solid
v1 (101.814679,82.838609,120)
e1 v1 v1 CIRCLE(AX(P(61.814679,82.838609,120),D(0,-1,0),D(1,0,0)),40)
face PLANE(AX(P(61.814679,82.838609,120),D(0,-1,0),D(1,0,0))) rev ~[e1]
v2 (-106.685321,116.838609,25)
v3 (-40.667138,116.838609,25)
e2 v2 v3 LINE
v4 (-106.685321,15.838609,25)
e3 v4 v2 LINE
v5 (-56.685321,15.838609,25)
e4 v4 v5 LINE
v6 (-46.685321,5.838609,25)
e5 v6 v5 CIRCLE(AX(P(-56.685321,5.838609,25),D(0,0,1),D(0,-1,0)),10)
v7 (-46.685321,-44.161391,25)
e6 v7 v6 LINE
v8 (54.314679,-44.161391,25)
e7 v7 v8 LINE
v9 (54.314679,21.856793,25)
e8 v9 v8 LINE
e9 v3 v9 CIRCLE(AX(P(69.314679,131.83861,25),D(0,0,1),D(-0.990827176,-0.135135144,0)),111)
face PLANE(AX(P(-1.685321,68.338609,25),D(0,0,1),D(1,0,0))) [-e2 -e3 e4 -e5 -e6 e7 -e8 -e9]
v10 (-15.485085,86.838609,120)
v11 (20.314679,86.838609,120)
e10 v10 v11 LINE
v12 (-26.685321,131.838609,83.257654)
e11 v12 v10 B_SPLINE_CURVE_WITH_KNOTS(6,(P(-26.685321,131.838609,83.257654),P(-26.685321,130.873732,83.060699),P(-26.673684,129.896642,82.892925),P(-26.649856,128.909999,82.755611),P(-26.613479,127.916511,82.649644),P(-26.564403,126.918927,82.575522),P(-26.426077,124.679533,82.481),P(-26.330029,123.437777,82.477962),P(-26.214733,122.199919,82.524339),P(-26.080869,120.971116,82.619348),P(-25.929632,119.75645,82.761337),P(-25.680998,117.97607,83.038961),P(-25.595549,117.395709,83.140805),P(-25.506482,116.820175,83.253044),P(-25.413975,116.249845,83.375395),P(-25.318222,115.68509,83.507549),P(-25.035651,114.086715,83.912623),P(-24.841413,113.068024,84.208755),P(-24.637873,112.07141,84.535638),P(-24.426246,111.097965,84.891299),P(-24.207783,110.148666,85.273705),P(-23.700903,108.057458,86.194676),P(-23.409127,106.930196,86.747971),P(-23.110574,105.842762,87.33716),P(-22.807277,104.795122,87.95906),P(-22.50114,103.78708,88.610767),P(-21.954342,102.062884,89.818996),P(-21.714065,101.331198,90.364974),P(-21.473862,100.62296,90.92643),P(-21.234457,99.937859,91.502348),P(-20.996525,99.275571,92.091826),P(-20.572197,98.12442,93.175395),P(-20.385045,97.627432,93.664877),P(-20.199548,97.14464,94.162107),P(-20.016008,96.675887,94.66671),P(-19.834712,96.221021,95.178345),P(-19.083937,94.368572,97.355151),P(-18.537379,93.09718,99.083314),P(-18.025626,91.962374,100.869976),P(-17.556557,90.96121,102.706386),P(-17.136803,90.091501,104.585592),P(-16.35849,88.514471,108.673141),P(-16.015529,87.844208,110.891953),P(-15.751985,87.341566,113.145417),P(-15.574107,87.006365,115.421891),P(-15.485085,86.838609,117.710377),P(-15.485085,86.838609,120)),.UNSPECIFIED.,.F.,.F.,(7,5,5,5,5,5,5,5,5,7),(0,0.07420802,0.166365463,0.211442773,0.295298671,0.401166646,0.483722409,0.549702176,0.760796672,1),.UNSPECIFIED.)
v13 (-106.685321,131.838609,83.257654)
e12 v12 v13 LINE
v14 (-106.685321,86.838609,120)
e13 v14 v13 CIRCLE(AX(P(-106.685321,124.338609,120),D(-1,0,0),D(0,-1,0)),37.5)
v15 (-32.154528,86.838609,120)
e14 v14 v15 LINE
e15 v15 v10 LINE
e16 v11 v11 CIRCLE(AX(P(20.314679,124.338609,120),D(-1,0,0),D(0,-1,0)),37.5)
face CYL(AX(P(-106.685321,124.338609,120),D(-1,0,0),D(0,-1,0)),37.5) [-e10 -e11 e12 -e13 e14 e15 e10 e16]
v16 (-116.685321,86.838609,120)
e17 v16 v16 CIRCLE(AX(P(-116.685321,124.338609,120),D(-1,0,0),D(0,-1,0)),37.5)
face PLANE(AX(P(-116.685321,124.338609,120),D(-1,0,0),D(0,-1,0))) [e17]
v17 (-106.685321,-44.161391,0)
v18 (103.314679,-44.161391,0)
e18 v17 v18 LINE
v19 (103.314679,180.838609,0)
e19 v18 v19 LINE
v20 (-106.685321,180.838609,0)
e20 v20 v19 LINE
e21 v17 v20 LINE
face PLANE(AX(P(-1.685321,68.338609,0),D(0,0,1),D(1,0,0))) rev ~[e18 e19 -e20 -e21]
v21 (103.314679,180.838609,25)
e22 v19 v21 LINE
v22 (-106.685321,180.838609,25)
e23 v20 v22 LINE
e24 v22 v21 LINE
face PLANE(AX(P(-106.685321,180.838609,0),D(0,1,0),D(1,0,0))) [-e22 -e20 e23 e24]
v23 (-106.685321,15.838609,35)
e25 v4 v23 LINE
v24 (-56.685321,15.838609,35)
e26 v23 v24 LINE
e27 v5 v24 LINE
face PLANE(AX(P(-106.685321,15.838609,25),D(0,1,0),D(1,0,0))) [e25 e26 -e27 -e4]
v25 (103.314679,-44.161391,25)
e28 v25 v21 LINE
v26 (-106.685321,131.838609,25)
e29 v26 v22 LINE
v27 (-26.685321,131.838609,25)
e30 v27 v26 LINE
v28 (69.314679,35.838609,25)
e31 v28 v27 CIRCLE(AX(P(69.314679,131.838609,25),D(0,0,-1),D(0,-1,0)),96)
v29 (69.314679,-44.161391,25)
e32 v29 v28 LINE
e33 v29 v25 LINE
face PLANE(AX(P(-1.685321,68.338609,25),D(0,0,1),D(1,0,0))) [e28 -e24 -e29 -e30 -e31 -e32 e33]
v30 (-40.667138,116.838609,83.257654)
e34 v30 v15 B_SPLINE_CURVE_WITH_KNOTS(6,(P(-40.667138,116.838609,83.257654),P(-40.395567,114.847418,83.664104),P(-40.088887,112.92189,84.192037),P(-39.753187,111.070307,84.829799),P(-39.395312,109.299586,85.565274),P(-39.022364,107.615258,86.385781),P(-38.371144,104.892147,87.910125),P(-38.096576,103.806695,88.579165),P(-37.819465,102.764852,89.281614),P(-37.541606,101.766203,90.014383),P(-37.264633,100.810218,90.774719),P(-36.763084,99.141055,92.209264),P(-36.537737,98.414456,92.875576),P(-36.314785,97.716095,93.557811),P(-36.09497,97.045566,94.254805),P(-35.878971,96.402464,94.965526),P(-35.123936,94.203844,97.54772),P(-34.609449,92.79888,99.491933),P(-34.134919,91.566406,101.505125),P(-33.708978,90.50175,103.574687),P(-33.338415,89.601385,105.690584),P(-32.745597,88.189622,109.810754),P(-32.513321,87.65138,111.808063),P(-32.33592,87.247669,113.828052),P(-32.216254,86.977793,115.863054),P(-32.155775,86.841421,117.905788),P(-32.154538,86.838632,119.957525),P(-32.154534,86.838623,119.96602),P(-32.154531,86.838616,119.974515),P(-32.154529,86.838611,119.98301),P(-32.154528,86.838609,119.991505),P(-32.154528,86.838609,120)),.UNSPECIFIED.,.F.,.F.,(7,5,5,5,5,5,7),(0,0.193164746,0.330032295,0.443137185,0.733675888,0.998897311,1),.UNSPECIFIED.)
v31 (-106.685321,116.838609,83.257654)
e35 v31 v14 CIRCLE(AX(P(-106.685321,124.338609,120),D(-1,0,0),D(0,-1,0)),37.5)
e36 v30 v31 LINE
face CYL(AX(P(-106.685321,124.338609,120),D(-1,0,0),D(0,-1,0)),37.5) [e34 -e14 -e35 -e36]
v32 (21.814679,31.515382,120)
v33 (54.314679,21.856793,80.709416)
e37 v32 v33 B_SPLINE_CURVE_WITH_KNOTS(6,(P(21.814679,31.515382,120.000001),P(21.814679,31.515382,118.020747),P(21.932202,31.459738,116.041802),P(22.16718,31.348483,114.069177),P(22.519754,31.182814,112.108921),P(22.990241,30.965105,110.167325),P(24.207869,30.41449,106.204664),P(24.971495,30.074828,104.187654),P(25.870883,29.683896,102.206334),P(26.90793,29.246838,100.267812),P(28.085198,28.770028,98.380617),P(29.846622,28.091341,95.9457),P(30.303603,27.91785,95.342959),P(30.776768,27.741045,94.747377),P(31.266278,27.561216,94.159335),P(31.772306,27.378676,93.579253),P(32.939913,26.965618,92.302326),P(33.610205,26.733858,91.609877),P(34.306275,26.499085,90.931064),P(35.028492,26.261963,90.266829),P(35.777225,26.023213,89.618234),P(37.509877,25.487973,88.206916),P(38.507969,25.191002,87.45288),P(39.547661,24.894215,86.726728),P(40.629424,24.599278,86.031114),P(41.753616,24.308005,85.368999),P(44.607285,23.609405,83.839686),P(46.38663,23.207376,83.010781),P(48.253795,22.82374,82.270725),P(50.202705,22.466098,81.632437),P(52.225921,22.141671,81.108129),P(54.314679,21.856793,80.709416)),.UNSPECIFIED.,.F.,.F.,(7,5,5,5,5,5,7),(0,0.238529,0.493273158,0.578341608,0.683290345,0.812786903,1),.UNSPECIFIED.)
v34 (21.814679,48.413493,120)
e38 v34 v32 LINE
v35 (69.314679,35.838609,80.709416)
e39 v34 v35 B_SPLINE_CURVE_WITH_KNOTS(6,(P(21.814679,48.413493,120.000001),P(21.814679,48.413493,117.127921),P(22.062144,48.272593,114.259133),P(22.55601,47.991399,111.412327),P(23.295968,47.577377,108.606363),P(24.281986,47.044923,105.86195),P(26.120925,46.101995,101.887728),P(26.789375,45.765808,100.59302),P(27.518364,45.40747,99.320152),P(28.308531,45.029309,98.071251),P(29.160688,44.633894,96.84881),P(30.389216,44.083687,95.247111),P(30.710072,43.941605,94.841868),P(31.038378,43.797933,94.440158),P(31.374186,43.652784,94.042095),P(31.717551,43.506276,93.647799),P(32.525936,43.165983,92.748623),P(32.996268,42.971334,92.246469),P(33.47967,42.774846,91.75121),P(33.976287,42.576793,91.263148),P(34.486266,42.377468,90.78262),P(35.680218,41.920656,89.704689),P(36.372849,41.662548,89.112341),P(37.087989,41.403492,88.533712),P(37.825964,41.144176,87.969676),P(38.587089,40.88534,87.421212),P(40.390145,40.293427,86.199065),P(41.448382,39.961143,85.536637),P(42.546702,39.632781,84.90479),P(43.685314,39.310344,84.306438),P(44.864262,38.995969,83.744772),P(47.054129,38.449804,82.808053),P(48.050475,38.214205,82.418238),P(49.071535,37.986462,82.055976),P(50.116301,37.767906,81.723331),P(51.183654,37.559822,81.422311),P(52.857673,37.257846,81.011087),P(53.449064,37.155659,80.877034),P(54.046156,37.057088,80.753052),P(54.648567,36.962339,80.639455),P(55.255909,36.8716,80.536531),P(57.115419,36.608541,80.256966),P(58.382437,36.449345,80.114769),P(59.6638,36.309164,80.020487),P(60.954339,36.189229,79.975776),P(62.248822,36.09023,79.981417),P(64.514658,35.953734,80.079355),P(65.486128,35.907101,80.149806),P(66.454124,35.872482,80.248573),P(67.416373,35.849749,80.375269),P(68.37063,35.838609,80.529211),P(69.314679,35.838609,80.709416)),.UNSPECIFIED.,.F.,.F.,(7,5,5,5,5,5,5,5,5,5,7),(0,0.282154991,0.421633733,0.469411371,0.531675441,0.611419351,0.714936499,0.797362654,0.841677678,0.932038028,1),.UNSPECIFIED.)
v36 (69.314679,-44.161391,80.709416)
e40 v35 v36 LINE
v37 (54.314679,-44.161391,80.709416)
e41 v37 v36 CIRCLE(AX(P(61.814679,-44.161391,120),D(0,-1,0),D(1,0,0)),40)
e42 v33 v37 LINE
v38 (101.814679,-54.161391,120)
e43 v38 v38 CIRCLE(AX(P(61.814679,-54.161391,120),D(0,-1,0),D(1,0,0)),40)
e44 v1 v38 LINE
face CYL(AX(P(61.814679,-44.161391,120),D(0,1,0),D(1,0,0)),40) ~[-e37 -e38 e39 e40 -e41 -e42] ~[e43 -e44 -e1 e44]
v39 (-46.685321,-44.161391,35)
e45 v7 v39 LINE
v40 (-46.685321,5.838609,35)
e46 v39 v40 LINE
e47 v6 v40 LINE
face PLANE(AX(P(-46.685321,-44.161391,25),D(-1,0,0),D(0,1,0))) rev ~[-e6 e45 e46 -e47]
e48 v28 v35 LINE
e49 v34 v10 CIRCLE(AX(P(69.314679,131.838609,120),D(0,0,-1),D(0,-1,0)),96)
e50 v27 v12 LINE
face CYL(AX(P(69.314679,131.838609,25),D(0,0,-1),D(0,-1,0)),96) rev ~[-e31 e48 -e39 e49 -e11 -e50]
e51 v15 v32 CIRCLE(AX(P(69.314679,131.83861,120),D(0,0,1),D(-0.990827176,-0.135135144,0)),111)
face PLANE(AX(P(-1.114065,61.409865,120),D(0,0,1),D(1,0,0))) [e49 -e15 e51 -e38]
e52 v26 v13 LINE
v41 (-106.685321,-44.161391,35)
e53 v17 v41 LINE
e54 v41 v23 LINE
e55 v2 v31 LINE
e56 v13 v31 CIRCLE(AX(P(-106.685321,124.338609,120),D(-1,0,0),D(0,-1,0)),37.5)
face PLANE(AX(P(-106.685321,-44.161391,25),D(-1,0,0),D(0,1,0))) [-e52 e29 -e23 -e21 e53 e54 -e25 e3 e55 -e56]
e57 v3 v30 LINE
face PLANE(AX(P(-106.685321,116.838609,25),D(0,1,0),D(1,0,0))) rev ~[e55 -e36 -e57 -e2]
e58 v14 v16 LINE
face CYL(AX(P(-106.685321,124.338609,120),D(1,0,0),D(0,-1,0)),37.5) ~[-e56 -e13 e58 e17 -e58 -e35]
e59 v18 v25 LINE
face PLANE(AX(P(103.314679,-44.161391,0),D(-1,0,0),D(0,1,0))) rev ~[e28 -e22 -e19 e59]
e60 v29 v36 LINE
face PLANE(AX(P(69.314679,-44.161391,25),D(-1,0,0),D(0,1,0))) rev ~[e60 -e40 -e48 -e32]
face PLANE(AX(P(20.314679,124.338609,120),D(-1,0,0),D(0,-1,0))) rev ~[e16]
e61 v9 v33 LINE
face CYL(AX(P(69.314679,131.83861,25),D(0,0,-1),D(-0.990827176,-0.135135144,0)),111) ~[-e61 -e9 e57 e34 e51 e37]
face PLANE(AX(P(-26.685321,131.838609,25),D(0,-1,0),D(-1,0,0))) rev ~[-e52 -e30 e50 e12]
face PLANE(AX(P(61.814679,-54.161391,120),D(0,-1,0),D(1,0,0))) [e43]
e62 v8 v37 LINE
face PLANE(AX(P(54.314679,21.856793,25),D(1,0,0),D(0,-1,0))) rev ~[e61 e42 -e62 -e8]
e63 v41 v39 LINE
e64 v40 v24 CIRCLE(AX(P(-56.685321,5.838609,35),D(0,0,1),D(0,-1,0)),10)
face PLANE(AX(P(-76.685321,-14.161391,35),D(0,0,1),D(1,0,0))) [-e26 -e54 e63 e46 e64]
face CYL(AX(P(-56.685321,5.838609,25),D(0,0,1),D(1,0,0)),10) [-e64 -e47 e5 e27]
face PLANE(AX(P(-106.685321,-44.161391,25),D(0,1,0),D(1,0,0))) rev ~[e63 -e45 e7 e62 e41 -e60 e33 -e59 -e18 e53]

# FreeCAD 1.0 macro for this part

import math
import FreeCAD as App
import Part
import Sketcher
Q = App.Units.Quantity


def edges_at(feature, points):
    """Names of the edges that pass closest to the given points."""
    edges = feature.Shape.Edges
    near = lambda p: min(range(len(edges)), key=lambda i: edges[i].distToShape(Part.Vertex(*p))[0])
    return sorted({f"Edge{near(p) + 1}" for p in points})


def add_polygon(sketch, points):
    """Adds a closed chain of lines whose ends are joined by coincident constraints."""
    first, n = sketch.GeometryCount, len(points)
    for a, b in zip(points, points[1:] + points[:1]):
        sketch.addGeometry(Part.LineSegment(App.Vector(*a, 0), App.Vector(*b, 0)), False)
    for i in range(n):
        sketch.addConstraint(Sketcher.Constraint("Coincident", first + i, 2, first + (i + 1) % n, 1))

doc = App.newDocument("Part")
body = doc.addObject("PartDesign::Body", "Body")

# Sketch on XY plane
sketch1 = doc.addObject("Sketcher::SketchObject", "Sketch")
body.addObject(sketch1)
sketch1.AttachmentSupport = (doc.XY_Plane, [""])
sketch1.MapMode = "FlatFace"
add_polygon(sketch1, [(-107, 181), (-107, -44), (103, -44), (103, 181)])  # lines 0-3
sketch1.addConstraint([
    Sketcher.Constraint("Vertical", 0),
    Sketcher.Constraint("Horizontal", 1),
    Sketcher.Constraint("Vertical", 2),
    Sketcher.Constraint("Horizontal", 3),
    Sketcher.Constraint("DistanceX", 1, 1, 1, 2, Q("210 mm")),
    Sketcher.Constraint("DistanceY", 0, 2, 0, 1, Q("225 mm")),
    Sketcher.Constraint("DistanceX", 0, 2, -1, 1, Q("106.685321 mm")),
    Sketcher.Constraint("DistanceY", 0, 2, -1, 1, Q("44.161391 mm")),
])
pad1 = doc.addObject("PartDesign::Pad", "Pad")
body.addObject(pad1)
pad1.Profile = sketch1
pad1.Length = 25

# Sketch on XY plane
sketch2 = doc.addObject("Sketcher::SketchObject", "Sketch001")
body.addObject(sketch2)
sketch2.AttachmentSupport = (doc.XY_Plane, [""])
sketch2.MapMode = "FlatFace"
sketch2.AttachmentOffset = App.Placement(App.Vector(0, 0, 25), App.Rotation())
sketch2.addGeometry([
    Part.LineSegment(App.Vector(-27, 132, 0), App.Vector(-107, 132, 0)),  # 0
    Part.LineSegment(App.Vector(-107, 132, 0), App.Vector(-107, 117, 0)),  # 1
    Part.LineSegment(App.Vector(-107, 117, 0), App.Vector(-41, 117, 0)),  # 2
    Part.ArcOfCircle(Part.Circle(App.Vector(69, 132, 0), App.Vector(0, 0, 1), 111), math.radians(-172), math.radians(-98)),  # 3
    Part.LineSegment(App.Vector(54, 22, 0), App.Vector(54, -44, 0)),  # 4
    Part.LineSegment(App.Vector(54, -44, 0), App.Vector(69, -44, 0)),  # 5
    Part.LineSegment(App.Vector(69, -44, 0), App.Vector(69, 36, 0)),  # 6
    Part.ArcOfCircle(Part.Circle(App.Vector(69, 132, 0), App.Vector(0, 0, 1), 96), math.radians(180), math.radians(270)),  # 7
], False)
sketch2.addConstraint([
    Sketcher.Constraint("Coincident", 0, 2, 1, 1),
    Sketcher.Constraint("Coincident", 1, 2, 2, 1),
    Sketcher.Constraint("Coincident", 2, 2, 3, 1),
    Sketcher.Constraint("Coincident", 3, 2, 4, 1),
    Sketcher.Constraint("Coincident", 4, 2, 5, 1),
    Sketcher.Constraint("Coincident", 5, 2, 6, 1),
    Sketcher.Constraint("Coincident", 6, 2, 7, 2),
    Sketcher.Constraint("Coincident", 7, 1, 0, 1),
    Sketcher.Constraint("Horizontal", 0),
    Sketcher.Constraint("Vertical", 1),
    Sketcher.Constraint("Horizontal", 2),
    Sketcher.Constraint("Vertical", 4),
    Sketcher.Constraint("Horizontal", 5),
    Sketcher.Constraint("Vertical", 6),
    Sketcher.Constraint("Coincident", 7, 3, 3, 3),
    Sketcher.Constraint("Horizontal", 7, 3, 0, 2),
    Sketcher.Constraint("Vertical", 7, 3, 5, 2),
    Sketcher.Constraint("Equal", 5, 1),
    Sketcher.Constraint("Equal", 2, 4),
    Sketcher.Constraint("Radius", 3, Q("111 mm")),
    Sketcher.Constraint("Radius", 7, Q("96 mm")),
    Sketcher.Constraint("DistanceX", 0, 2, 0, 1, Q("80 mm")),
    Sketcher.Constraint("DistanceX", 5, 1, 5, 2, Q("15 mm")),
    Sketcher.Constraint("DistanceX", -1, 1, 3, 3, Q("69.314679 mm")),
    Sketcher.Constraint("DistanceY", -1, 1, 3, 3, Q("131.83861 mm")),
])
pad2 = doc.addObject("PartDesign::Pad", "Pad001")
body.addObject(pad2)
pad2.Profile = sketch2
pad2.Length = 95

# Sketch on YZ plane
sketch3 = doc.addObject("Sketcher::SketchObject", "Sketch002")
body.addObject(sketch3)
sketch3.AttachmentSupport = (doc.YZ_Plane, [""])
sketch3.MapMode = "FlatFace"
sketch3.AttachmentOffset = App.Placement(App.Vector(0, 0, -106.685321), App.Rotation())
sketch3.addGeometry(Part.Circle(App.Vector(124, 120, 0), App.Vector(0, 0, 1), 38), False)
sketch3.addConstraint([
    Sketcher.Constraint("Diameter", 0, Q("75 mm")),
    Sketcher.Constraint("DistanceY", -1, 1, 0, 3, Q("120 mm")),
    Sketcher.Constraint("DistanceX", -1, 1, 0, 3, Q("124.338609 mm")),
])
pad3 = doc.addObject("PartDesign::Pad", "Pad002")
body.addObject(pad3)
pad3.Profile = sketch3
pad3.Type = "TwoLengths"
pad3.Length = 10
pad3.Length2 = 127
pad3.Reversed = True

# Sketch on XZ plane
sketch4 = doc.addObject("Sketcher::SketchObject", "Sketch003")
body.addObject(sketch4)
sketch4.AttachmentSupport = (doc.XZ_Plane, [""])
sketch4.MapMode = "FlatFace"
sketch4.AttachmentOffset = App.Placement(App.Vector(0, 0, 44.161391), App.Rotation())
sketch4.addGeometry(Part.Circle(App.Vector(62, 120, 0), App.Vector(0, 0, 1), 40), False)
sketch4.addConstraint([
    Sketcher.Constraint("Diameter", 0, Q("80 mm")),
    Sketcher.Constraint("DistanceY", -1, 1, 0, 3, Q("120 mm")),
    Sketcher.Constraint("DistanceX", -1, 1, 0, 3, Q("61.814679 mm")),
])
pad4 = doc.addObject("PartDesign::Pad", "Pad003")
body.addObject(pad4)
pad4.Profile = sketch4
pad4.Type = "TwoLengths"
pad4.Length = 10
pad4.Length2 = 127

# Sketch on XY plane
sketch5 = doc.addObject("Sketcher::SketchObject", "Sketch004")
body.addObject(sketch5)
sketch5.AttachmentSupport = (doc.XY_Plane, [""])
sketch5.MapMode = "FlatFace"
sketch5.AttachmentOffset = App.Placement(App.Vector(0, 0, 25), App.Rotation())
add_polygon(sketch5, [(-107, 16), (-107, -44), (-47, -44), (-47, 16)])  # lines 0-3
sketch5.addConstraint([
    Sketcher.Constraint("Vertical", 0),
    Sketcher.Constraint("Horizontal", 1),
    Sketcher.Constraint("Vertical", 2),
    Sketcher.Constraint("Horizontal", 3),
    Sketcher.Constraint("Equal", 3, 0),
    Sketcher.Constraint("DistanceX", 1, 1, 1, 2, Q("60 mm")),
    Sketcher.Constraint("DistanceX", 0, 2, -1, 1, Q("106.685321 mm")),
    Sketcher.Constraint("DistanceY", 0, 2, -1, 1, Q("44.161391 mm")),
])
pad5 = doc.addObject("PartDesign::Pad", "Pad004")
body.addObject(pad5)
pad5.Profile = sketch5
pad5.Length = 10
doc.recompute()

fillet = doc.addObject("PartDesign::Fillet", "Fillet")
body.addObject(fillet)
fillet.Base = (pad5, edges_at(pad5, [(-46.685, 15.839, 30)]))
fillet.Radius = 10

doc.recompute()
